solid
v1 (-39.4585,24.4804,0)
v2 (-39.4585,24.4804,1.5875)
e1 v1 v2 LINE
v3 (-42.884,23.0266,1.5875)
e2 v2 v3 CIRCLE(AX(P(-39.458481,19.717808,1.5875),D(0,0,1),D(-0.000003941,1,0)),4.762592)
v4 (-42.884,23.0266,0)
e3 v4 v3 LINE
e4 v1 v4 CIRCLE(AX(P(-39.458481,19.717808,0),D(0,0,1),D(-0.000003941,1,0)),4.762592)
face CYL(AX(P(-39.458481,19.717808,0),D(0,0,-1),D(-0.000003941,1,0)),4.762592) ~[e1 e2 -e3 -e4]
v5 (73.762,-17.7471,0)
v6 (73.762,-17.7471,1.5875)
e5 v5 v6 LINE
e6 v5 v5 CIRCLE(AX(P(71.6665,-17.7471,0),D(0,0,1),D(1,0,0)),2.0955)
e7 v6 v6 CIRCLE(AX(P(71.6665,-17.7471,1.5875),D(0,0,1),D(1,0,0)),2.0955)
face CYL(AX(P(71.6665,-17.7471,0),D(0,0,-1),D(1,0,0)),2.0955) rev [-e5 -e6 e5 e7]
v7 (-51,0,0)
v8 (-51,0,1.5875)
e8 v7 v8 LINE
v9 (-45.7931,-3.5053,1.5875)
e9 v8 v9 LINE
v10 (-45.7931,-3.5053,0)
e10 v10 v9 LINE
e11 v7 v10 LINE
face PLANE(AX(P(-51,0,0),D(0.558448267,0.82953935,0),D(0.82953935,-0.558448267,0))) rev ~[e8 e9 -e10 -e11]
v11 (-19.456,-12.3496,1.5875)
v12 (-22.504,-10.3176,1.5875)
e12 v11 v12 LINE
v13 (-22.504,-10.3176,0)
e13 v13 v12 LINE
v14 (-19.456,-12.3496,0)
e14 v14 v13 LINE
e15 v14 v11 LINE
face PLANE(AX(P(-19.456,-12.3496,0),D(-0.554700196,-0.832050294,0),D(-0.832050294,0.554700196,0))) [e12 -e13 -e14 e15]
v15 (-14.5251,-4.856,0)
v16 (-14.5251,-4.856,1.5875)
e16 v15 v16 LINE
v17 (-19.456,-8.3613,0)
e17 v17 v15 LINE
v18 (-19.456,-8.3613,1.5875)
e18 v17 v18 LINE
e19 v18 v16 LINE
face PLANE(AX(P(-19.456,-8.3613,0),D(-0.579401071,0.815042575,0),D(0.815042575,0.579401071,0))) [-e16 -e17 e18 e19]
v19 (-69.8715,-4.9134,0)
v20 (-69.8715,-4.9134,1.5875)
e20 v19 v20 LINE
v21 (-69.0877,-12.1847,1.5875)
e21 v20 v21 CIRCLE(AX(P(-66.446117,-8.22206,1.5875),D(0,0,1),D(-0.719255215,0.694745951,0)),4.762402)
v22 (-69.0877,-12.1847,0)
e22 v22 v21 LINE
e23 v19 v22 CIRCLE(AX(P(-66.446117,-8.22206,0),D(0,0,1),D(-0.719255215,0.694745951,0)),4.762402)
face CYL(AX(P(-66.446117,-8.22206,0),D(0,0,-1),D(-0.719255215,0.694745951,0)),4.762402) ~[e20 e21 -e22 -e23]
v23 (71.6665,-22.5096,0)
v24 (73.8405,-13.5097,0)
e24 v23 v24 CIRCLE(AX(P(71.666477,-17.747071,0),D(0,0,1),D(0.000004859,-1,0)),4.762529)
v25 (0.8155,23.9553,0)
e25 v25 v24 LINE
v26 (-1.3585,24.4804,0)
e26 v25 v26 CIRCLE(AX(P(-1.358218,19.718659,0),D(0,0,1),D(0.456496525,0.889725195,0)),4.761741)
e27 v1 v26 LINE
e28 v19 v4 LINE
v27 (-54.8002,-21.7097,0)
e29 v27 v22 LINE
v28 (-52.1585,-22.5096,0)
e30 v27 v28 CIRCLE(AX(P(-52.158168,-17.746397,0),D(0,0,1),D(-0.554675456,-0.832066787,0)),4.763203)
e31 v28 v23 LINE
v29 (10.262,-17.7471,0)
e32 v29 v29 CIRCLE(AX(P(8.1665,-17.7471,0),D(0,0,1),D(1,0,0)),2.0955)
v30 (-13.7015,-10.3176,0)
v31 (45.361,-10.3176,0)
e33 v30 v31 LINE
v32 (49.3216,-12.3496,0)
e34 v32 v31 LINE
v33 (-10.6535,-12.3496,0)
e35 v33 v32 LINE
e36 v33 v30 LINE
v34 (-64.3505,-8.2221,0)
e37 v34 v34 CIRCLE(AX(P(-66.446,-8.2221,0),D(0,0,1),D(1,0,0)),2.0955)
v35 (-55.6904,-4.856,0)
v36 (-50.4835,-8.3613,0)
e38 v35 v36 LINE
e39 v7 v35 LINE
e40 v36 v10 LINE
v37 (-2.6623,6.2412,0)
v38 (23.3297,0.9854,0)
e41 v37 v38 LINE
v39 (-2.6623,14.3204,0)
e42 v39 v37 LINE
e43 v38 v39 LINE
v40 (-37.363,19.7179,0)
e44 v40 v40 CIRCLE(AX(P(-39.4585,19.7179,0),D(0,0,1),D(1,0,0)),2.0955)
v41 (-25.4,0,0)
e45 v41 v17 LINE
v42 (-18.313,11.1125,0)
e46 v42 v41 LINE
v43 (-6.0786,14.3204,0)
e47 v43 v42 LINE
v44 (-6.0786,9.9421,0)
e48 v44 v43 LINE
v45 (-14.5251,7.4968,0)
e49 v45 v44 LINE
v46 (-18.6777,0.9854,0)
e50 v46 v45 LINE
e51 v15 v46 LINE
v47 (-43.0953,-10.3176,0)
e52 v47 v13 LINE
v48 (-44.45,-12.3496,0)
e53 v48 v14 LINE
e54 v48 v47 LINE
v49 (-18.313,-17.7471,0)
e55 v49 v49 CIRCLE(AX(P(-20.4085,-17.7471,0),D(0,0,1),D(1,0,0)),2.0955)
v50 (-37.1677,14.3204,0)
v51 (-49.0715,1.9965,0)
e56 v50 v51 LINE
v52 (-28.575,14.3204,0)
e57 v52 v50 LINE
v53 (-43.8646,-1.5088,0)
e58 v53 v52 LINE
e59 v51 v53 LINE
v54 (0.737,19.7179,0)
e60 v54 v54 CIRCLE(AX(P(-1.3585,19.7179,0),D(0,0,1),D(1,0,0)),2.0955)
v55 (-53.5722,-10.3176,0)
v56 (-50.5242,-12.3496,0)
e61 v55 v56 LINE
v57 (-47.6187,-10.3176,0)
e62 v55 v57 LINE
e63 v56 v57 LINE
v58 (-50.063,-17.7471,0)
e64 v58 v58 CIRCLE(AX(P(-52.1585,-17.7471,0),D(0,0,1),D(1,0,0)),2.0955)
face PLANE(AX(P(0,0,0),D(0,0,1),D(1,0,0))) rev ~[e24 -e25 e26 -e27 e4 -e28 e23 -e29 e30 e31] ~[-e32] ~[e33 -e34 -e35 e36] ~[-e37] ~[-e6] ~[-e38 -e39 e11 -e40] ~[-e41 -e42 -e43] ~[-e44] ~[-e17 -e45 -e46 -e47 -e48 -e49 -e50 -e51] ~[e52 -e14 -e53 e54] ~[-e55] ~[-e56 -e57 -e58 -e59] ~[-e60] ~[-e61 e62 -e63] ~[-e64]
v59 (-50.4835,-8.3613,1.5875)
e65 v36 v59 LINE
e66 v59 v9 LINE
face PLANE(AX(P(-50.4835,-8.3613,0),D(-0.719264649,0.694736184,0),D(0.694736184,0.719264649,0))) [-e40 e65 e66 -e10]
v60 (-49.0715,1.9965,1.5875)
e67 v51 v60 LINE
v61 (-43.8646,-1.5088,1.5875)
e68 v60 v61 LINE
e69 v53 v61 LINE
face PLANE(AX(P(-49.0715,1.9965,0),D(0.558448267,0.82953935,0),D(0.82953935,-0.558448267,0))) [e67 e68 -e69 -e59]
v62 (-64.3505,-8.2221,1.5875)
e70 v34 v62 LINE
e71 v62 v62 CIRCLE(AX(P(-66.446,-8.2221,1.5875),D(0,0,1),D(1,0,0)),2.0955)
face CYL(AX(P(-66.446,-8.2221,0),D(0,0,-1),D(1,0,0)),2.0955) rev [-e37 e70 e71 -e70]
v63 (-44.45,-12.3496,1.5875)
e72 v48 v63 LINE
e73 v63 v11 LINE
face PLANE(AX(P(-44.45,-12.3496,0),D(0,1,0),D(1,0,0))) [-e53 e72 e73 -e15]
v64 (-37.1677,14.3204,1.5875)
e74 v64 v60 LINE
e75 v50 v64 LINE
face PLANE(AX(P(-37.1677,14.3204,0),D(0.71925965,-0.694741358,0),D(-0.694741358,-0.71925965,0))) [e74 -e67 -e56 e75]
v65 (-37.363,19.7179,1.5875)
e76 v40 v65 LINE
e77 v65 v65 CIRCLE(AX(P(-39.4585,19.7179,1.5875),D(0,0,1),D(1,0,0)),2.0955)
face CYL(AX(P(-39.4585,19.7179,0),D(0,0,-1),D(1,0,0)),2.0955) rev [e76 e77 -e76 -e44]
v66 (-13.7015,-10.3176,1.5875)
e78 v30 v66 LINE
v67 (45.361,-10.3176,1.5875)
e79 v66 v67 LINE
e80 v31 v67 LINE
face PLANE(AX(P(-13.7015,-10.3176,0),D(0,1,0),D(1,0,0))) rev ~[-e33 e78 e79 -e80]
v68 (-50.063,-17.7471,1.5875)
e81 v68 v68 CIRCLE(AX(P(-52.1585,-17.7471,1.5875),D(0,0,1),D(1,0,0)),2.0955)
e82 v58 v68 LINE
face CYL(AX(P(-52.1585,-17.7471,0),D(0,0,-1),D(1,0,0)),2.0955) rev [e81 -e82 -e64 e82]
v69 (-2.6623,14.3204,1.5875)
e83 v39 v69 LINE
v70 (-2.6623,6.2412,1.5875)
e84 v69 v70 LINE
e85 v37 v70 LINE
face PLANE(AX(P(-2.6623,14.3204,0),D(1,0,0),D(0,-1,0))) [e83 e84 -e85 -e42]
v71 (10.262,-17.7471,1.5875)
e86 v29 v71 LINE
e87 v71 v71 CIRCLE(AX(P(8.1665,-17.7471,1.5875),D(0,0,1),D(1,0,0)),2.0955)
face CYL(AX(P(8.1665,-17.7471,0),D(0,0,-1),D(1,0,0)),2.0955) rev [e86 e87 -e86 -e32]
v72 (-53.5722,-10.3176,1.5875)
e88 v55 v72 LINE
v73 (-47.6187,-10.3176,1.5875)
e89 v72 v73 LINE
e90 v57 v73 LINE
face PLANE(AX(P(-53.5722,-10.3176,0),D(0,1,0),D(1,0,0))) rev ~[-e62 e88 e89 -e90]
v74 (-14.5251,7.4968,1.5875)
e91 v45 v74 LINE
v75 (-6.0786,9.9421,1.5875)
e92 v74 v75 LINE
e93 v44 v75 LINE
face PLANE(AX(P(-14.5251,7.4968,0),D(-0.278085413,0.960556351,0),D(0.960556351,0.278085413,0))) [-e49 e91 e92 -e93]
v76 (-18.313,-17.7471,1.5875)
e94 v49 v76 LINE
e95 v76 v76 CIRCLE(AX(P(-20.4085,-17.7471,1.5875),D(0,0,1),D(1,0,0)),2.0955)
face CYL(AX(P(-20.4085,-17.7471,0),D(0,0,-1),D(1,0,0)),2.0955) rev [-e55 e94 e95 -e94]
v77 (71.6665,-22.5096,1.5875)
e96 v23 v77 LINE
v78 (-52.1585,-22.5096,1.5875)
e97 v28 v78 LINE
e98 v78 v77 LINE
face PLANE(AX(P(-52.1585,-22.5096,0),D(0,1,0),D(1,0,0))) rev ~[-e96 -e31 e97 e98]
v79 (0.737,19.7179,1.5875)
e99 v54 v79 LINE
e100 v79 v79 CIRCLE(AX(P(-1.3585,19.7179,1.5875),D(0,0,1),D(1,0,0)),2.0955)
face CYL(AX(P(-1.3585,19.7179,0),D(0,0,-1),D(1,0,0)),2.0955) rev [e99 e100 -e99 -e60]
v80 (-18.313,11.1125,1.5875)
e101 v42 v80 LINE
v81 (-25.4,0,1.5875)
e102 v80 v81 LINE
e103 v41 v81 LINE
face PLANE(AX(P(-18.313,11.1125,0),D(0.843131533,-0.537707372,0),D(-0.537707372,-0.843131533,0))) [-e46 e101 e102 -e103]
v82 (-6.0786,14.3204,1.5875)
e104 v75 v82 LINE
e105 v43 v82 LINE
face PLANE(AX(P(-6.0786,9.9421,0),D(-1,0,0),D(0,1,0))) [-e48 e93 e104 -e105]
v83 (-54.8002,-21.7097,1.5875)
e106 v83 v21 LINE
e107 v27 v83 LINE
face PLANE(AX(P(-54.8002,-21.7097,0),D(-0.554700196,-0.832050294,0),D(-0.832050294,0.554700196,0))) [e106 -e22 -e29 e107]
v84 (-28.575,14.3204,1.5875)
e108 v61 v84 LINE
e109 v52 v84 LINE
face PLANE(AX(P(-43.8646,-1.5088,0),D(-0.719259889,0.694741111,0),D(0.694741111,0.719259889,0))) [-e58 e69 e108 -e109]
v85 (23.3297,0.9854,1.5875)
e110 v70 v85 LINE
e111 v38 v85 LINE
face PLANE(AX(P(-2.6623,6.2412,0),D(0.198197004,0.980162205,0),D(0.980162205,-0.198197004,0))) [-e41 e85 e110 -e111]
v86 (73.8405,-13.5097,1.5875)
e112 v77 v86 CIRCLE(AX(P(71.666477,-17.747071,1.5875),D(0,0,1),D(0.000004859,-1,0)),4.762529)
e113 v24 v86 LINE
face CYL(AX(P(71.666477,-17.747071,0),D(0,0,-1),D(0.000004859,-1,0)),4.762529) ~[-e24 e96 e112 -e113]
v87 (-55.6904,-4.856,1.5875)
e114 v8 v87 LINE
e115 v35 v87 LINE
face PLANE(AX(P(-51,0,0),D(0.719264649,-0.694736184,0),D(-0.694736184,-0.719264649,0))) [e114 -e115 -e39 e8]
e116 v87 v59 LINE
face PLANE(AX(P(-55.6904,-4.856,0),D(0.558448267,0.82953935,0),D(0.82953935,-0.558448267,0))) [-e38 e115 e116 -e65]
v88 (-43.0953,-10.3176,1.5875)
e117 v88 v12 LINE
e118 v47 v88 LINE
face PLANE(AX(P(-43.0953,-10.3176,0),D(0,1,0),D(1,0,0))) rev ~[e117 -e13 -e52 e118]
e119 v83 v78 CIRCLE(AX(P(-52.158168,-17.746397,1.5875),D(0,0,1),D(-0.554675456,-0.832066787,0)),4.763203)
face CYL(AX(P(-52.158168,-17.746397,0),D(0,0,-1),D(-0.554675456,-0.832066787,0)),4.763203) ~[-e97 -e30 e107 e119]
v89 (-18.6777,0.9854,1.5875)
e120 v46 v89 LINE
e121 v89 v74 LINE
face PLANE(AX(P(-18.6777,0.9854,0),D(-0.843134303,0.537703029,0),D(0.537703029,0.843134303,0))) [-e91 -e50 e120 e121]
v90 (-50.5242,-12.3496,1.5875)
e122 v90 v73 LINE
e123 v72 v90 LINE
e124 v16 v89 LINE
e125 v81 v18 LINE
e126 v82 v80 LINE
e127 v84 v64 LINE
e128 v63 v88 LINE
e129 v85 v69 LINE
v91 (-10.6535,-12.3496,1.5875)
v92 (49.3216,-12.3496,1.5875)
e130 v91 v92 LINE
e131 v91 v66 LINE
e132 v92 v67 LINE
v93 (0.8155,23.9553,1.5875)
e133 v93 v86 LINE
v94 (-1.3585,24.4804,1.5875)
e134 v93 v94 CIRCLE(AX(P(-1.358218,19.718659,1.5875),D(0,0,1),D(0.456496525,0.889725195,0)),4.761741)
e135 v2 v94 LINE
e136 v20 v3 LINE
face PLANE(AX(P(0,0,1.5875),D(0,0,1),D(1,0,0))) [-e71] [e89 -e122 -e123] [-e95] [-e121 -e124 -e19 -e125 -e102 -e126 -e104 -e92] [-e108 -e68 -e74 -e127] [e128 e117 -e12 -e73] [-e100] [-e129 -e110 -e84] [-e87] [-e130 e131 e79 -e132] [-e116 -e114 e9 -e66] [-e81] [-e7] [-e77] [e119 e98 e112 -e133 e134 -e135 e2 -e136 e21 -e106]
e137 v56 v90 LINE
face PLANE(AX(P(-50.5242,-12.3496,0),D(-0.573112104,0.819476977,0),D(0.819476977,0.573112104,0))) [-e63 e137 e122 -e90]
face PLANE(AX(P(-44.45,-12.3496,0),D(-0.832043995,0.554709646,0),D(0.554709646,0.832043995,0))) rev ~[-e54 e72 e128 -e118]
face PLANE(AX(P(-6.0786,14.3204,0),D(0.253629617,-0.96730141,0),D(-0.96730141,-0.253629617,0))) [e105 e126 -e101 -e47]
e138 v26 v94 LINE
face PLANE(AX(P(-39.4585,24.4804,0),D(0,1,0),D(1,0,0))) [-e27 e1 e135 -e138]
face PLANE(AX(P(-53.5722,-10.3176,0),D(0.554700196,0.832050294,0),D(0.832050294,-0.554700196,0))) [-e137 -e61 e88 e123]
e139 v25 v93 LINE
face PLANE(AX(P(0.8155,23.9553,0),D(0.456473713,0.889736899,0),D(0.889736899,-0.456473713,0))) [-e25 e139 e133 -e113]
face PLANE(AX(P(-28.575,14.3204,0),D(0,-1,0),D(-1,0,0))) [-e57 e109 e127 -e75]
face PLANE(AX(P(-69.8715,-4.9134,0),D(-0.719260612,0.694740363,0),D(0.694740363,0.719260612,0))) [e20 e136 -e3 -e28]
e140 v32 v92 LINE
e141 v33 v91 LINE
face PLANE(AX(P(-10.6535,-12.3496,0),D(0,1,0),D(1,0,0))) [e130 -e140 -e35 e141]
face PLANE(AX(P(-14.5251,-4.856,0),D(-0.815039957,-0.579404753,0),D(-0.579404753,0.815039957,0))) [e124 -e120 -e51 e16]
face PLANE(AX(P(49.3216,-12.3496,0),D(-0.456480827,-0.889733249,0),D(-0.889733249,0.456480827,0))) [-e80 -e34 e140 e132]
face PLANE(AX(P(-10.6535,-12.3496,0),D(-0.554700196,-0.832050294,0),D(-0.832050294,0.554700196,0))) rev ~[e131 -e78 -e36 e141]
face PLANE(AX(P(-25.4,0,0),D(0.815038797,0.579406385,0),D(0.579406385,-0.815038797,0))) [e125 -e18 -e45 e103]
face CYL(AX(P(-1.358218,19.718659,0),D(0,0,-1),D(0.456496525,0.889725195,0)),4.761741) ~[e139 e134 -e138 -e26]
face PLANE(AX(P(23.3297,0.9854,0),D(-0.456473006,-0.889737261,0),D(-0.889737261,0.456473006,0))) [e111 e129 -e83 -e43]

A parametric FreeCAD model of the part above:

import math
import FreeCAD as App
import Part
import Sketcher

V = App.Vector
Q = App.Units.Quantity

doc = App.newDocument("Part")
body = doc.addObject("PartDesign::Body", "Body")

# Sketch on XY plane
sketch1 = doc.addObject("Sketcher::SketchObject", "Sketch")
body.addObject(sketch1)
sketch1.AttachmentSupport = (doc.XY_Plane, [""])
sketch1.MapMode = "FlatFace"
sketch1.addGeometry([
    Part.LineSegment(V(-42.9, 23, 0), V(-69.9, -4.9, 0)),  # 0
    Part.ArcOfCircle(Part.Circle(V(-66.4, -8.2, 0), V(0, 0, 1), 4.8), math.radians(136), math.radians(236)),  # 1
    Part.LineSegment(V(-69.1, -12.2, 0), V(-54.8, -21.7, 0)),  # 2
    Part.ArcOfCircle(Part.Circle(V(-52.2, -17.7, 0), V(0, 0, 1), 4.8), math.radians(-124), math.radians(-90)),  # 3
    Part.LineSegment(V(-52.2, -22.5, 0), V(71.7, -22.5, 0)),  # 4
    Part.ArcOfCircle(Part.Circle(V(71.7, -17.7, 0), V(0, 0, 1), 4.8), math.radians(-90), math.radians(63)),  # 5
    Part.LineSegment(V(73.8, -13.5, 0), V(0.8, 24, 0)),  # 6
    Part.ArcOfCircle(Part.Circle(V(-1.4, 19.7, 0), V(0, 0, 1), 4.8), math.radians(63), math.radians(90)),  # 7
    Part.LineSegment(V(-1.4, 24.5, 0), V(-39.5, 24.5, 0)),  # 8
    Part.ArcOfCircle(Part.Circle(V(-39.5, 19.7, 0), V(0, 0, 1), 4.8), math.radians(90), math.radians(136)),  # 9
    Part.Circle(V(-52.2, -17.7, 0), V(0, 0, 1), 2.1),  # 10
    Part.LineSegment(V(-50.5, -12.3, 0), V(-53.6, -10.3, 0)),  # 11
    Part.LineSegment(V(-53.6, -10.3, 0), V(-47.6, -10.3, 0)),  # 12
    Part.LineSegment(V(-47.6, -10.3, 0), V(-50.5, -12.3, 0)),  # 13
    Part.Circle(V(-20.4, -17.7, 0), V(0, 0, 1), 2.1),  # 14
    Part.LineSegment(V(-22.5, -10.3, 0), V(-19.5, -12.3, 0)),  # 15
    Part.LineSegment(V(-19.5, -12.3, 0), V(-44.5, -12.3, 0)),  # 16
    Part.LineSegment(V(-44.5, -12.3, 0), V(-43.1, -10.3, 0)),  # 17
    Part.LineSegment(V(-43.1, -10.3, 0), V(-22.5, -10.3, 0)),  # 18
    Part.Circle(V(-66.4, -8.2, 0), V(0, 0, 1), 2.1),  # 19
    Part.LineSegment(V(-50.5, -8.4, 0), V(-55.7, -4.9, 0)),  # 20
    Part.LineSegment(V(-55.7, -4.9, 0), V(-51, 0, 0)),  # 21
    Part.LineSegment(V(-51, 0, 0), V(-45.8, -3.5, 0)),  # 22
    Part.LineSegment(V(-45.8, -3.5, 0), V(-50.5, -8.4, 0)),  # 23
    Part.Circle(V(8.2, -17.7, 0), V(0, 0, 1), 2.1),  # 24
    Part.LineSegment(V(49.3, -12.3, 0), V(-10.7, -12.3, 0)),  # 25
    Part.LineSegment(V(-10.7, -12.3, 0), V(-13.7, -10.3, 0)),  # 26
    Part.LineSegment(V(-13.7, -10.3, 0), V(45.4, -10.3, 0)),  # 27
    Part.LineSegment(V(45.4, -10.3, 0), V(49.3, -12.3, 0)),  # 28
    Part.Circle(V(71.7, -17.7, 0), V(0, 0, 1), 2.1),  # 29
    Part.LineSegment(V(-37.2, 14.3, 0), V(-28.6, 14.3, 0)),  # 30
    Part.LineSegment(V(-28.6, 14.3, 0), V(-43.9, -1.5, 0)),  # 31
    Part.LineSegment(V(-43.9, -1.5, 0), V(-49.1, 2, 0)),  # 32
    Part.LineSegment(V(-49.1, 2, 0), V(-37.2, 14.3, 0)),  # 33
    Part.LineSegment(V(-18.3, 11.1, 0), V(-6.1, 14.3, 0)),  # 34
    Part.LineSegment(V(-6.1, 14.3, 0), V(-6.1, 9.9, 0)),  # 35
    Part.LineSegment(V(-6.1, 9.9, 0), V(-14.5, 7.5, 0)),  # 36
    Part.LineSegment(V(-14.5, 7.5, 0), V(-18.7, 1, 0)),  # 37
    Part.LineSegment(V(-18.7, 1, 0), V(-14.5, -4.9, 0)),  # 38
    Part.LineSegment(V(-14.5, -4.9, 0), V(-19.5, -8.4, 0)),  # 39
    Part.LineSegment(V(-19.5, -8.4, 0), V(-25.4, 0, 0)),  # 40
    Part.LineSegment(V(-25.4, 0, 0), V(-18.3, 11.1, 0)),  # 41
    Part.Circle(V(-39.5, 19.7, 0), V(0, 0, 1), 2.1),  # 42
    Part.Circle(V(-1.4, 19.7, 0), V(0, 0, 1), 2.1),  # 43
    Part.LineSegment(V(-2.7, 6.2, 0), V(-2.7, 14.3, 0)),  # 44
    Part.LineSegment(V(-2.7, 14.3, 0), V(23.3, 1, 0)),  # 45
    Part.LineSegment(V(23.3, 1, 0), V(-2.7, 6.2, 0)),  # 46
], False)
sketch1.addConstraint([
    Sketcher.Constraint("Tangent", 0, 2, 1, 1),
    Sketcher.Constraint("Tangent", 1, 2, 2, 1),
    Sketcher.Constraint("Tangent", 2, 2, 3, 1),
    Sketcher.Constraint("Tangent", 3, 2, 4, 1),
    Sketcher.Constraint("Tangent", 4, 2, 5, 1),
    Sketcher.Constraint("Tangent", 5, 2, 6, 1),
    Sketcher.Constraint("Tangent", 6, 2, 7, 1),
    Sketcher.Constraint("Tangent", 7, 2, 8, 1),
    Sketcher.Constraint("Tangent", 8, 2, 9, 1),
    Sketcher.Constraint("Tangent", 9, 2, 0, 1),
    Sketcher.Constraint("Coincident", 11, 2, 12, 1),
    Sketcher.Constraint("Coincident", 12, 2, 13, 1),
    Sketcher.Constraint("Coincident", 13, 2, 11, 1),
    Sketcher.Constraint("Coincident", 15, 2, 16, 1),
    Sketcher.Constraint("Coincident", 16, 2, 17, 1),
    Sketcher.Constraint("Coincident", 17, 2, 18, 1),
    Sketcher.Constraint("Coincident", 18, 2, 15, 1),
    Sketcher.Constraint("Coincident", 20, 2, 21, 1),
    Sketcher.Constraint("Coincident", 21, 2, 22, 1),
    Sketcher.Constraint("Coincident", 22, 2, 23, 1),
    Sketcher.Constraint("Coincident", 23, 2, 20, 1),
    Sketcher.Constraint("Coincident", 25, 2, 26, 1),
    Sketcher.Constraint("Coincident", 26, 2, 27, 1),
    Sketcher.Constraint("Coincident", 27, 2, 28, 1),
    Sketcher.Constraint("Coincident", 28, 2, 25, 1),
    Sketcher.Constraint("Coincident", 30, 2, 31, 1),
    Sketcher.Constraint("Coincident", 31, 2, 32, 1),
    Sketcher.Constraint("Coincident", 32, 2, 33, 1),
    Sketcher.Constraint("Coincident", 33, 2, 30, 1),
    Sketcher.Constraint("Coincident", 34, 2, 35, 1),
    Sketcher.Constraint("Coincident", 35, 2, 36, 1),
    Sketcher.Constraint("Coincident", 36, 2, 37, 1),
    Sketcher.Constraint("Coincident", 37, 2, 38, 1),
    Sketcher.Constraint("Coincident", 38, 2, 39, 1),
    Sketcher.Constraint("Coincident", 39, 2, 40, 1),
    Sketcher.Constraint("Coincident", 40, 2, 41, 1),
    Sketcher.Constraint("Coincident", 41, 2, 34, 1),
    Sketcher.Constraint("Coincident", 44, 2, 45, 1),
    Sketcher.Constraint("Coincident", 45, 2, 46, 1),
    Sketcher.Constraint("Coincident", 46, 2, 44, 1),
    Sketcher.Constraint("Horizontal", 4),
    Sketcher.Constraint("Horizontal", 8),
    Sketcher.Constraint("Horizontal", 12),
    Sketcher.Constraint("Horizontal", 16),
    Sketcher.Constraint("Horizontal", 18),
    Sketcher.Constraint("Horizontal", 25),
    Sketcher.Constraint("Horizontal", 27),
    Sketcher.Constraint("Horizontal", 30),
    Sketcher.Constraint("Vertical", 35),
    Sketcher.Constraint("Vertical", 44),
    Sketcher.Constraint("Coincident", 10, 3, 3, 3),
    Sketcher.Constraint("Coincident", 19, 3, 1, 3),
    Sketcher.Constraint("Coincident", 29, 3, 5, 3),
    Sketcher.Constraint("Coincident", 42, 3, 9, 3),
    Sketcher.Constraint("Coincident", 43, 3, 7, 3),
    Sketcher.Constraint("Equal", 1, 3),
    Sketcher.Constraint("Equal", 3, 5),
    Sketcher.Constraint("Equal", 5, 7),
    Sketcher.Constraint("Equal", 7, 9),
    Sketcher.Constraint("Equal", 10, 14),
    Sketcher.Constraint("Equal", 14, 19),
    Sketcher.Constraint("Equal", 19, 24),
    Sketcher.Constraint("Equal", 24, 29),
    Sketcher.Constraint("Equal", 29, 42),
    Sketcher.Constraint("Equal", 42, 43),
    Sketcher.Constraint("PointOnObject", 21, 2, -1),
    Sketcher.Constraint("PointOnObject", 40, 2, -1),
    Sketcher.Constraint("Parallel", 2, 11),
    Sketcher.Constraint("Parallel", 11, 15),
    Sketcher.Constraint("Perpendicular", 15, 17),
    Sketcher.Constraint("Parallel", 0, 21),
    Sketcher.Constraint("Parallel", 20, 22),
    Sketcher.Constraint("Parallel", 21, 23),
    Sketcher.Constraint("Perpendicular", 17, 26),
    Sketcher.Constraint("Parallel", 6, 28),
    Sketcher.Constraint("Parallel", 23, 31),
    Sketcher.Constraint("Parallel", 22, 32),
    Sketcher.Constraint("Parallel", 31, 33),
    Sketcher.Constraint("Perpendicular", 38, 39),
    Sketcher.Constraint("Perpendicular", 39, 40),
    Sketcher.Constraint("Parallel", 37, 41),
    Sketcher.Constraint("Parallel", 28, 45),
    Sketcher.Constraint("Horizontal", 10, 3, 14, 3),
    Sketcher.Constraint("Horizontal", 14, 3, 24, 3),
    Sketcher.Constraint("Horizontal", 13, 2, 15, 2),
    Sketcher.Constraint("Horizontal", 12, 2, 17, 2),
    Sketcher.Constraint("Horizontal", 16, 2, 25, 2),
    Sketcher.Constraint("Horizontal", 18, 2, 26, 2),
    Sketcher.Constraint("Horizontal", 33, 2, 34, 2),
    Sketcher.Constraint("Horizontal", 20, 2, 38, 2),
    Sketcher.Constraint("Horizontal", 23, 2, 39, 2),
    Sketcher.Constraint("Horizontal", 34, 2, 44, 2),
    Sketcher.Constraint("Horizontal", 37, 2, 45, 2),
    Sketcher.Constraint("Vertical", 36, 2, 38, 2),
    Sketcher.Constraint("Vertical", 15, 2, 39, 2),
    Sketcher.Constraint("Equal", 22, 32),
    Sketcher.Constraint("Diameter", 10, Q("0.165 in")),
    Sketcher.Constraint("Radius", 1, Q("0.1875 in")),
    Sketcher.Constraint("DistanceY", 3, 2, 13, 2, Q("0.4 in")),
    Sketcher.Constraint("DistanceY", 30, 2, 8, 2, Q("0.4 in")),
    Sketcher.Constraint("DistanceX", 8, 2, 8, 1, Q("1.5 in")),
    Sketcher.Constraint("DistanceX", 40, 2, -1, 1, Q("1 in")),
    Sketcher.Constraint("DistanceY", 3, 3, 1, 3, Q("0.375 in")),
    Sketcher.Constraint("DistanceX", 3, 3, 7, 3, Q("2 in")),
    Sketcher.Constraint("DistanceX", 7, 3, 24, 3, Q("0.375 in")),
    Sketcher.Constraint("DistanceY", 1, 3, 7, 3, Q("1.1 in")),
    Sketcher.Constraint("DistanceX", 24, 3, 29, 3, Q("2.5 in")),
    Sketcher.Constraint("DistanceX", 1, 2, -1, 1, Q("2.72 in")),
    Sketcher.Constraint("DistanceX", 16, 2, -1, 1, Q("1.75 in")),
    Sketcher.Constraint("Angle", 2, Q("-33.69 deg")),
    Sketcher.Constraint("Angle", 40, Q("125.4088 deg")),
    Sketcher.Constraint("DistanceX", 3, 3, 14, 3, Q("1.25 in")),
    Sketcher.Constraint("DistanceY", 3, 2, 11, 2, Q("0.48 in")),
    Sketcher.Constraint("DistanceX", 12, 1, 12, 2, Q("0.2344 in")),
    Sketcher.Constraint("DistanceX", 27, 1, 27, 2, Q("2.3253 in")),
    Sketcher.Constraint("DistanceX", 30, 1, 30, 2, Q("0.3383 in")),
    Sketcher.Constraint("DistanceY", 22, 2, -1, 1, Q("0.138 in")),
    Sketcher.Constraint("DistanceX", 30, 2, -1, 1, Q("1.125 in")),
    Sketcher.Constraint("DistanceY", -1, 1, 41, 2, Q("0.4375 in")),
    Sketcher.Constraint("DistanceY", 18, 2, 37, 2, Q("0.445 in")),
    Sketcher.Constraint("Distance", 21, Q("0.2658 in")),
    Sketcher.Constraint("Distance", 36, Q("0.3462 in")),
    Sketcher.Constraint("Distance", 41, Q("0.5189 in")),
    Sketcher.Constraint("DistanceY", 35, 2, 35, 1, Q("4.3783 mm")),
    Sketcher.Constraint("DistanceY", 44, 1, 44, 2, Q("8.0792 mm")),
    Sketcher.Constraint("DistanceY", 1, 3, -1, 1, Q("0.3237 in")),
    Sketcher.Constraint("DistanceX", -1, 1, 28, 2, Q("1.9418 in")),
    Sketcher.Constraint("DistanceY", 31, 2, -1, 1, Q("0.0594 in")),
    Sketcher.Constraint("DistanceX", -1, 1, 45, 2, Q("0.9185 in")),
    Sketcher.Constraint("DistanceX", 20, 2, 11, 2, Q("0.0834 in")),
    Sketcher.Constraint("DistanceX", 21, 2, 17, 2, Q("0.3112 in")),
])
pad1 = doc.addObject("PartDesign::Pad", "Pad")
body.addObject(pad1)
pad1.Profile = sketch1
pad1.Length = Q("0.0625 in")

doc.recompute()
